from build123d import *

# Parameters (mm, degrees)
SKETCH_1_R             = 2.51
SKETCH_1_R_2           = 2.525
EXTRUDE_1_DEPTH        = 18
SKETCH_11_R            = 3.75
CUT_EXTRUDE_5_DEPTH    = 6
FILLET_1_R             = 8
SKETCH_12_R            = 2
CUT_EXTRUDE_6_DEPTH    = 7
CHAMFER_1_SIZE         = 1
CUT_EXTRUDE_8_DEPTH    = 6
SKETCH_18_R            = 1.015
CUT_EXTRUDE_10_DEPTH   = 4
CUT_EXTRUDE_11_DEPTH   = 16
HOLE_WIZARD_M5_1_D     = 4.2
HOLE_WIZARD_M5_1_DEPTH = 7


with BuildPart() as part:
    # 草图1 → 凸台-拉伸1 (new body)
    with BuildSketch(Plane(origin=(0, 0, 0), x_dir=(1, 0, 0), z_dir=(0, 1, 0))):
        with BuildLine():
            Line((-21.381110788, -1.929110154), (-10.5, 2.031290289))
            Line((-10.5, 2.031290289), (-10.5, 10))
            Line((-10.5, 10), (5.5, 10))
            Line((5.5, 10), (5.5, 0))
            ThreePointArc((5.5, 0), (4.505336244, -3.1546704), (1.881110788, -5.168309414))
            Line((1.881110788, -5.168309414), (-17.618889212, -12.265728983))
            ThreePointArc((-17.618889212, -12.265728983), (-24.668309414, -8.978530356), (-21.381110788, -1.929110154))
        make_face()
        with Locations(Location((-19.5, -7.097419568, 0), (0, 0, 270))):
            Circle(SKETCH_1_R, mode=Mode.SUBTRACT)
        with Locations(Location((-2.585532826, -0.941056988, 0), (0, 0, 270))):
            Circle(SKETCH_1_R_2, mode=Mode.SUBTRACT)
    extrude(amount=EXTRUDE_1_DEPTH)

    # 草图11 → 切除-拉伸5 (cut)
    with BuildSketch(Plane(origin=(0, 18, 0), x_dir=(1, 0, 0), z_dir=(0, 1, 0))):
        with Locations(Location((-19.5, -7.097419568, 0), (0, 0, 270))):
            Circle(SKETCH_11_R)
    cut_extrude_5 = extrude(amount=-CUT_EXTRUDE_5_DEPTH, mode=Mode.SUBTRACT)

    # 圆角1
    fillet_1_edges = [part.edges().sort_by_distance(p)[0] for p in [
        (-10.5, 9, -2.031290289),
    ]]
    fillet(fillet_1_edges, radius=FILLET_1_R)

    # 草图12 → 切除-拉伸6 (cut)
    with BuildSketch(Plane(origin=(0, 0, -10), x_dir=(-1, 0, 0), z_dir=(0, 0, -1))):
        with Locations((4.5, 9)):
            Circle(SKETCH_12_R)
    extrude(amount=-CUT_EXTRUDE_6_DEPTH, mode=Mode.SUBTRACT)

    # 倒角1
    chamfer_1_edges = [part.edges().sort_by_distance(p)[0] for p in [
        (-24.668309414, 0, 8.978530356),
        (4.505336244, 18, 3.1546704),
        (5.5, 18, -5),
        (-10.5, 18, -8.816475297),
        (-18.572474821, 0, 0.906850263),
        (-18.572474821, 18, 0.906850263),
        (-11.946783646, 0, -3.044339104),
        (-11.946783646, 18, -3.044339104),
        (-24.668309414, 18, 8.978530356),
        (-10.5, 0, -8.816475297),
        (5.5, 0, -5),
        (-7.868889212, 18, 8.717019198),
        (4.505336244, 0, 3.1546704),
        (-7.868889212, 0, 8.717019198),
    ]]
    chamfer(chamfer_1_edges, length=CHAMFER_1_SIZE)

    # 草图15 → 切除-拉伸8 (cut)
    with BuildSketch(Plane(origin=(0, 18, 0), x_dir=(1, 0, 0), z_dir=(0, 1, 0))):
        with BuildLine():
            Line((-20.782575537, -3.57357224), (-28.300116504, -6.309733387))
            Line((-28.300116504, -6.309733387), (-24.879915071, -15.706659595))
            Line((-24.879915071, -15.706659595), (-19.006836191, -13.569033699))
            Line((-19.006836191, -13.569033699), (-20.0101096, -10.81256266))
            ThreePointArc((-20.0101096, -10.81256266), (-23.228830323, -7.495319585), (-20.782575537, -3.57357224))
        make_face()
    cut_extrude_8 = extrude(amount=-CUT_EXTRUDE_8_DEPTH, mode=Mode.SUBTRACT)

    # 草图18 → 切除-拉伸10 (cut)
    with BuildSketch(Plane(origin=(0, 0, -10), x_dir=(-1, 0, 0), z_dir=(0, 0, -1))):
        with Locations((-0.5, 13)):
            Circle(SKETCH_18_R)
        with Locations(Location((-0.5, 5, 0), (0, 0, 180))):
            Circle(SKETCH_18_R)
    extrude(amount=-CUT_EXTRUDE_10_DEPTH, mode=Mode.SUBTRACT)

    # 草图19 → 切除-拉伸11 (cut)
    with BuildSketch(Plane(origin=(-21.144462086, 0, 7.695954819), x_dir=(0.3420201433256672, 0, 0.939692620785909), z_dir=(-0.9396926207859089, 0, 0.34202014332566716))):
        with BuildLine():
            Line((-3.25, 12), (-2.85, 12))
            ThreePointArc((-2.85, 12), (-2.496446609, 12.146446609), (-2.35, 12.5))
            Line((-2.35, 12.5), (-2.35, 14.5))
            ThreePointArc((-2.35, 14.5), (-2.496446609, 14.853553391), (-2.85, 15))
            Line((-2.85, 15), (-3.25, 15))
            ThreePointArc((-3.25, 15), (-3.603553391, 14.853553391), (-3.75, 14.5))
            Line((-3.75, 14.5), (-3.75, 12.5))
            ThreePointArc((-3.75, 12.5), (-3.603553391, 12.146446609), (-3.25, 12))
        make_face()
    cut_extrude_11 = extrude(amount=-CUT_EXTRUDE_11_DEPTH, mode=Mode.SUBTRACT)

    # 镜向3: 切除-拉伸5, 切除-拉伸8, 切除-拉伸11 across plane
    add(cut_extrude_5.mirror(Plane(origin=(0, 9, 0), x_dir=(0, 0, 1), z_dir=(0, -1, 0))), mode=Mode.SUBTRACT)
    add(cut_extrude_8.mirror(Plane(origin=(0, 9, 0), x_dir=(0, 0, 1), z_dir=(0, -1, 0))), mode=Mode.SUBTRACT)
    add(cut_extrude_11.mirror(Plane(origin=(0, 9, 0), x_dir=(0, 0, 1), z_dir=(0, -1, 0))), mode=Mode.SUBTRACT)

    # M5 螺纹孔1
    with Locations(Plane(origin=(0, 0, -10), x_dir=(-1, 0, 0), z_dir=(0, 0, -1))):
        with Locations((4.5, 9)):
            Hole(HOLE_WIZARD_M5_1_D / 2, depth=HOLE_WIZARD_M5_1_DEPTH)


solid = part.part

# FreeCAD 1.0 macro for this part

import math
import FreeCAD as App
import Part
import Sketcher

V = App.Vector
Q = App.Units.Quantity


def edges_at(feature, points):
    """Names of the edges that pass closest to the given points."""
    edges = feature.Shape.Edges
    near = lambda p: min(range(len(edges)), key=lambda i: edges[i].distToShape(Part.Vertex(*p))[0])
    return sorted({f"Edge{near(p) + 1}" for p in points})

doc = App.newDocument("Part")
body = doc.addObject("PartDesign::Body", "Body")

# Sketch on XZ plane
sketch1 = body.newObject("Sketcher::SketchObject", "Sketch")
sketch1.AttachmentSupport = (doc.getObject("XZ_Plane"), [""])
sketch1.MapMode = "FlatFace"
sketch1.addGeometry([
    Part.LineSegment(V(-10.5, -2, 0), V(-21.4, 1.9, 0)),  # 0
    Part.ArcOfCircle(Part.Circle(V(-19.5, 7.1, 0), V(0, 0, 1), 5.5), math.radians(70), math.radians(250)),  # 1
    Part.LineSegment(V(-17.6, 12.3, 0), V(1.9, 5.2, 0)),  # 2
    Part.ArcOfCircle(Part.Circle(V(0, 0, 0), V(0, 0, 1), 5.5), math.radians(0), math.radians(70)),  # 3
    Part.LineSegment(V(5.5, 0, 0), V(5.5, -10, 0)),  # 4
    Part.LineSegment(V(5.5, -10, 0), V(-10.5, -10, 0)),  # 5
    Part.LineSegment(V(-10.5, -10, 0), V(-10.5, -2, 0)),  # 6
    Part.Circle(V(-19.5, 7.1, 0), V(0, 0, 1), 2.5),  # 7
    Part.Circle(V(-2.6, 0.9, 0), V(0, 0, 1), 2.5),  # 8
], False)
sketch1.addConstraint([
    Sketcher.Constraint("Tangent", 0, 2, 1, 2),
    Sketcher.Constraint("Tangent", 1, 1, 2, 1),
    Sketcher.Constraint("Tangent", 2, 2, 3, 2),
    Sketcher.Constraint("Tangent", 3, 1, 4, 1),
    Sketcher.Constraint("Coincident", 4, 2, 5, 1),
    Sketcher.Constraint("Coincident", 5, 2, 6, 1),
    Sketcher.Constraint("Coincident", 6, 2, 0, 1),
    Sketcher.Constraint("Vertical", 4),
    Sketcher.Constraint("Horizontal", 5),
    Sketcher.Constraint("Vertical", 6),
    Sketcher.Constraint("Coincident", 3, 3, -1, 1),
    Sketcher.Constraint("Coincident", 7, 3, 1, 3),
    Sketcher.Constraint("Equal", 1, 3),
    Sketcher.Constraint("Parallel", 0, 2),
    Sketcher.Constraint("Radius", 1, 5.5),
    Sketcher.Constraint("Diameter", 7, 5.02),
    Sketcher.Constraint("Diameter", 8, 5.05),
    Sketcher.Constraint("DistanceX", 5, 2, 5, 1, 16.0),
    Sketcher.Constraint("DistanceY", 4, 2, 4, 1, 10.0),
    Sketcher.Constraint("Angle", 0, Q("160 deg")),
    Sketcher.Constraint("DistanceX", 1, 3, 3, 1, 25.0),
    Sketcher.Constraint("DistanceY", 8, 3, 1, 1, 11.324672),
    Sketcher.Constraint("DistanceX", 8, 3, -1, 1, 2.585533),
])
pad1 = body.newObject("PartDesign::Pad", "Pad")
pad1.Profile = sketch1
pad1.Length = 18
pad1.Reversed = True

# Sketch on XZ plane
sketch2 = body.newObject("Sketcher::SketchObject", "Sketch001")
sketch2.AttachmentSupport = (doc.getObject("XZ_Plane"), [""])
sketch2.MapMode = "FlatFace"
sketch2.AttachmentOffset = App.Placement(V(0, 0, -18), App.Rotation())
sketch2.addGeometry(Part.Circle(V(-19.5, 7.1, 0), V(0, 0, 1), 3.8), False)
sketch2.addConstraint([
    Sketcher.Constraint("Diameter", 0, 7.5),
    Sketcher.Constraint("DistanceX", 0, 3, -1, 1, 19.5),
    Sketcher.Constraint("DistanceY", -1, 1, 0, 3, 7.09742),
])
pocket1 = body.newObject("PartDesign::Pocket", "Pocket")
pocket1.Profile = sketch2
pocket1.Length = 6
pocket1.Reversed = True
doc.recompute()

fillet = body.newObject("PartDesign::Fillet", "Fillet")
fillet.Base = (pocket1, edges_at(pocket1, [(-10.5, 9, -2.031)]))
fillet.Radius = 8

# Sketch on XY plane
sketch3 = body.newObject("Sketcher::SketchObject", "Sketch002")
sketch3.AttachmentSupport = (doc.getObject("XY_Plane"), [""])
sketch3.MapMode = "FlatFace"
sketch3.AttachmentOffset = App.Placement(V(0, 0, -10), App.Rotation())
sketch3.addGeometry(Part.Circle(V(-4.5, 9, 0), V(0, 0, 1), 2), False)
sketch3.addConstraint([
    Sketcher.Constraint("Diameter", 0, 4.0),
    Sketcher.Constraint("DistanceY", -1, 1, 0, 3, 9.0),
    Sketcher.Constraint("DistanceX", 0, 3, -1, 1, 4.5),
])
pocket2 = body.newObject("PartDesign::Pocket", "Pocket001")
pocket2.Profile = sketch3
pocket2.Length = 7
pocket2.Reversed = True
doc.recompute()

chamfer = body.newObject("PartDesign::Chamfer", "Chamfer")
chamfer.Base = (pocket2, edges_at(pocket2, [
    (-24.668, 0, 8.979),
    (4.505, 18, 3.155),
    (5.5, 18, -5),
    (-10.5, 18, -8.816),
    (-18.572, 0, 0.907),
    (-18.572, 18, 0.907),
    (-11.947, 0, -3.044),
    (-11.947, 18, -3.044),
    (-24.668, 18, 8.979),
    (-10.5, 0, -8.816),
    (5.5, 0, -5),
    (-7.869, 18, 8.717),
    (4.505, 0, 3.155),
    (-7.869, 0, 8.717),
]))
chamfer.Size = 1

# Sketch on XZ plane
sketch4 = body.newObject("Sketcher::SketchObject", "Sketch003")
sketch4.AttachmentSupport = (doc.getObject("XZ_Plane"), [""])
sketch4.MapMode = "FlatFace"
sketch4.AttachmentOffset = App.Placement(V(0, 0, -18), App.Rotation())
sketch4.addGeometry([
    Part.LineSegment(V(-20.8, 3.6, 0), V(-28.3, 6.3, 0)),  # 0
    Part.LineSegment(V(-28.3, 6.3, 0), V(-24.9, 15.7, 0)),  # 1
    Part.LineSegment(V(-24.9, 15.7, 0), V(-19, 13.6, 0)),  # 2
    Part.LineSegment(V(-19, 13.6, 0), V(-20, 10.8, 0)),  # 3
    Part.ArcOfCircle(Part.Circle(V(-19.5, 7.1, 0), V(0, 0, 1), 3.8), math.radians(98), math.radians(250)),  # 4
], False)
sketch4.addConstraint([
    Sketcher.Constraint("Coincident", 0, 2, 1, 1),
    Sketcher.Constraint("Coincident", 1, 2, 2, 1),
    Sketcher.Constraint("Coincident", 2, 2, 3, 1),
    Sketcher.Constraint("Coincident", 3, 2, 4, 1),
    Sketcher.Constraint("Tangent", 4, 2, 0, 1),
    Sketcher.Constraint("Perpendicular", 0, 1),
    Sketcher.Constraint("Perpendicular", 1, 2),
    Sketcher.Constraint("Perpendicular", 2, 3),
    Sketcher.Constraint("Angle", 0, Q("160 deg")),
    Sketcher.Constraint("Radius", 4, 3.75),
    Sketcher.Constraint("Distance", 0, 8.0),
    Sketcher.Constraint("Distance", 1, 10.0),
    Sketcher.Constraint("DistanceX", 4, 3, -1, 1, 19.5),
    Sketcher.Constraint("Distance", 2, 6.25),
    Sketcher.Constraint("DistanceY", -1, 1, 4, 3, 7.09742),
])
pocket3 = body.newObject("PartDesign::Pocket", "Pocket002")
pocket3.Profile = sketch4
pocket3.Length = 6
pocket3.Reversed = True

# Sketch on XY plane
sketch5 = body.newObject("Sketcher::SketchObject", "Sketch004")
sketch5.AttachmentSupport = (doc.getObject("XY_Plane"), [""])
sketch5.MapMode = "FlatFace"
sketch5.AttachmentOffset = App.Placement(V(0, 0, -10), App.Rotation())
sketch5.addGeometry([
    Part.Circle(V(0.5, 13, 0), V(0, 0, 1), 1),
    Part.Circle(V(0.5, 5, 0), V(0, 0, 1), 1),
], False)
sketch5.addConstraint([
    Sketcher.Constraint("Equal", 0, 1),
    Sketcher.Constraint("Vertical", 0, 3, 1, 3),
    Sketcher.Constraint("Diameter", 0, 2.03),
    Sketcher.Constraint("DistanceY", -1, 1, 0, 3, 13.0),
    Sketcher.Constraint("DistanceY", -1, 1, 1, 3, 5.0),
    Sketcher.Constraint("DistanceX", -1, 1, 0, 3, 0.5),
])
pocket4 = body.newObject("PartDesign::Pocket", "Pocket003")
pocket4.Profile = sketch5
pocket4.Length = 4
pocket4.Reversed = True

# Sketch on an angled plane
sketch6 = body.newObject("Sketcher::SketchObject", "Sketch005")
sketch6.Placement = App.Placement(V(-21.144462, 0, 7.695955), App.Rotation(V(0.342020143, 0, 0.939692621), V(0, 1, 0), V(-0.939692621, 0, 0.342020143), "ZXY"))
sketch6.addGeometry([
    Part.LineSegment(V(-3.25, 12, 0), V(-2.85, 12, 0)),  # 0
    Part.ArcOfCircle(Part.Circle(V(-2.85, 12.5, 0), V(0, 0, 1), 0.5), math.radians(-90), math.radians(0)),  # 1
    Part.LineSegment(V(-2.35, 12.5, 0), V(-2.35, 14.5, 0)),  # 2
    Part.ArcOfCircle(Part.Circle(V(-2.85, 14.5, 0), V(0, 0, 1), 0.5), math.radians(0), math.radians(90)),  # 3
    Part.LineSegment(V(-2.85, 15, 0), V(-3.25, 15, 0)),  # 4
    Part.ArcOfCircle(Part.Circle(V(-3.25, 14.5, 0), V(0, 0, 1), 0.5), math.radians(90), math.radians(180)),  # 5
    Part.LineSegment(V(-3.75, 14.5, 0), V(-3.75, 12.5, 0)),  # 6
    Part.ArcOfCircle(Part.Circle(V(-3.25, 12.5, 0), V(0, 0, 1), 0.5), math.radians(180), math.radians(270)),  # 7
], False)
sketch6.addConstraint([
    Sketcher.Constraint("Tangent", 0, 2, 1, 1),
    Sketcher.Constraint("Tangent", 1, 2, 2, 1),
    Sketcher.Constraint("Tangent", 2, 2, 3, 1),
    Sketcher.Constraint("Tangent", 3, 2, 4, 1),
    Sketcher.Constraint("Tangent", 4, 2, 5, 1),
    Sketcher.Constraint("Tangent", 5, 2, 6, 1),
    Sketcher.Constraint("Tangent", 6, 2, 7, 1),
    Sketcher.Constraint("Tangent", 7, 2, 0, 1),
    Sketcher.Constraint("Horizontal", 0),
    Sketcher.Constraint("Vertical", 2),
    Sketcher.Constraint("Horizontal", 4),
    Sketcher.Constraint("Vertical", 6),
    Sketcher.Constraint("Equal", 1, 3),
    Sketcher.Constraint("Equal", 3, 5),
    Sketcher.Constraint("Equal", 5, 7),
    Sketcher.Constraint("Radius", 1, 0.5),
    Sketcher.Constraint("DistanceY", 2, 1, 2, 2, 2.0),
    Sketcher.Constraint("DistanceX", 0, 1, 0, 2, 0.4),
    Sketcher.Constraint("DistanceY", -1, 1, 0, 2, 12.0),
    Sketcher.Constraint("DistanceX", 1, 3, -1, 1, 2.85),
])
pocket5 = body.newObject("PartDesign::Pocket", "Pocket004")
pocket5.Profile = sketch6
pocket5.Length = 16
doc.recompute()

datumplane = body.newObject("PartDesign::Plane", "DatumPlane")
datumplane.AttachmentSupport = (doc.getObject("XZ_Plane"), [""])
datumplane.MapMode = "FlatFace"
datumplane.AttachmentOffset = App.Placement(V(0, 0, -9), App.Rotation())
mirrored = body.newObject("PartDesign::Mirrored", "Mirrored")
mirrored.Originals = [pocket1, pocket3, pocket5]
mirrored.MirrorPlane = (datumplane, [""])
body.Tip = mirrored

# Sketch on XY plane
sketch7 = body.newObject("Sketcher::SketchObject", "Sketch006")
sketch7.AttachmentSupport = (doc.getObject("XY_Plane"), [""])
sketch7.MapMode = "FlatFace"
sketch7.AttachmentOffset = App.Placement(V(0, 0, -10), App.Rotation())
sketch7.addGeometry(Part.Circle(V(-4.5, 9, 0), V(0, 0, 1), 2.1), False)
sketch7.addConstraint([
    Sketcher.Constraint("Diameter", 0, 4.2),
    Sketcher.Constraint("DistanceY", -1, 1, 0, 3, 9.0),
    Sketcher.Constraint("DistanceX", 0, 3, -1, 1, 4.5),
])
doc.recompute()
hole = body.newObject("PartDesign::Hole", "Hole")
hole.Profile = sketch7
hole.ThreadType = "None"
hole.Diameter = 4.2
hole.DepthType = "Dimension"
hole.Depth = 7
hole.DrillPoint = "Flat"
hole.Reversed = True

doc.recompute()
